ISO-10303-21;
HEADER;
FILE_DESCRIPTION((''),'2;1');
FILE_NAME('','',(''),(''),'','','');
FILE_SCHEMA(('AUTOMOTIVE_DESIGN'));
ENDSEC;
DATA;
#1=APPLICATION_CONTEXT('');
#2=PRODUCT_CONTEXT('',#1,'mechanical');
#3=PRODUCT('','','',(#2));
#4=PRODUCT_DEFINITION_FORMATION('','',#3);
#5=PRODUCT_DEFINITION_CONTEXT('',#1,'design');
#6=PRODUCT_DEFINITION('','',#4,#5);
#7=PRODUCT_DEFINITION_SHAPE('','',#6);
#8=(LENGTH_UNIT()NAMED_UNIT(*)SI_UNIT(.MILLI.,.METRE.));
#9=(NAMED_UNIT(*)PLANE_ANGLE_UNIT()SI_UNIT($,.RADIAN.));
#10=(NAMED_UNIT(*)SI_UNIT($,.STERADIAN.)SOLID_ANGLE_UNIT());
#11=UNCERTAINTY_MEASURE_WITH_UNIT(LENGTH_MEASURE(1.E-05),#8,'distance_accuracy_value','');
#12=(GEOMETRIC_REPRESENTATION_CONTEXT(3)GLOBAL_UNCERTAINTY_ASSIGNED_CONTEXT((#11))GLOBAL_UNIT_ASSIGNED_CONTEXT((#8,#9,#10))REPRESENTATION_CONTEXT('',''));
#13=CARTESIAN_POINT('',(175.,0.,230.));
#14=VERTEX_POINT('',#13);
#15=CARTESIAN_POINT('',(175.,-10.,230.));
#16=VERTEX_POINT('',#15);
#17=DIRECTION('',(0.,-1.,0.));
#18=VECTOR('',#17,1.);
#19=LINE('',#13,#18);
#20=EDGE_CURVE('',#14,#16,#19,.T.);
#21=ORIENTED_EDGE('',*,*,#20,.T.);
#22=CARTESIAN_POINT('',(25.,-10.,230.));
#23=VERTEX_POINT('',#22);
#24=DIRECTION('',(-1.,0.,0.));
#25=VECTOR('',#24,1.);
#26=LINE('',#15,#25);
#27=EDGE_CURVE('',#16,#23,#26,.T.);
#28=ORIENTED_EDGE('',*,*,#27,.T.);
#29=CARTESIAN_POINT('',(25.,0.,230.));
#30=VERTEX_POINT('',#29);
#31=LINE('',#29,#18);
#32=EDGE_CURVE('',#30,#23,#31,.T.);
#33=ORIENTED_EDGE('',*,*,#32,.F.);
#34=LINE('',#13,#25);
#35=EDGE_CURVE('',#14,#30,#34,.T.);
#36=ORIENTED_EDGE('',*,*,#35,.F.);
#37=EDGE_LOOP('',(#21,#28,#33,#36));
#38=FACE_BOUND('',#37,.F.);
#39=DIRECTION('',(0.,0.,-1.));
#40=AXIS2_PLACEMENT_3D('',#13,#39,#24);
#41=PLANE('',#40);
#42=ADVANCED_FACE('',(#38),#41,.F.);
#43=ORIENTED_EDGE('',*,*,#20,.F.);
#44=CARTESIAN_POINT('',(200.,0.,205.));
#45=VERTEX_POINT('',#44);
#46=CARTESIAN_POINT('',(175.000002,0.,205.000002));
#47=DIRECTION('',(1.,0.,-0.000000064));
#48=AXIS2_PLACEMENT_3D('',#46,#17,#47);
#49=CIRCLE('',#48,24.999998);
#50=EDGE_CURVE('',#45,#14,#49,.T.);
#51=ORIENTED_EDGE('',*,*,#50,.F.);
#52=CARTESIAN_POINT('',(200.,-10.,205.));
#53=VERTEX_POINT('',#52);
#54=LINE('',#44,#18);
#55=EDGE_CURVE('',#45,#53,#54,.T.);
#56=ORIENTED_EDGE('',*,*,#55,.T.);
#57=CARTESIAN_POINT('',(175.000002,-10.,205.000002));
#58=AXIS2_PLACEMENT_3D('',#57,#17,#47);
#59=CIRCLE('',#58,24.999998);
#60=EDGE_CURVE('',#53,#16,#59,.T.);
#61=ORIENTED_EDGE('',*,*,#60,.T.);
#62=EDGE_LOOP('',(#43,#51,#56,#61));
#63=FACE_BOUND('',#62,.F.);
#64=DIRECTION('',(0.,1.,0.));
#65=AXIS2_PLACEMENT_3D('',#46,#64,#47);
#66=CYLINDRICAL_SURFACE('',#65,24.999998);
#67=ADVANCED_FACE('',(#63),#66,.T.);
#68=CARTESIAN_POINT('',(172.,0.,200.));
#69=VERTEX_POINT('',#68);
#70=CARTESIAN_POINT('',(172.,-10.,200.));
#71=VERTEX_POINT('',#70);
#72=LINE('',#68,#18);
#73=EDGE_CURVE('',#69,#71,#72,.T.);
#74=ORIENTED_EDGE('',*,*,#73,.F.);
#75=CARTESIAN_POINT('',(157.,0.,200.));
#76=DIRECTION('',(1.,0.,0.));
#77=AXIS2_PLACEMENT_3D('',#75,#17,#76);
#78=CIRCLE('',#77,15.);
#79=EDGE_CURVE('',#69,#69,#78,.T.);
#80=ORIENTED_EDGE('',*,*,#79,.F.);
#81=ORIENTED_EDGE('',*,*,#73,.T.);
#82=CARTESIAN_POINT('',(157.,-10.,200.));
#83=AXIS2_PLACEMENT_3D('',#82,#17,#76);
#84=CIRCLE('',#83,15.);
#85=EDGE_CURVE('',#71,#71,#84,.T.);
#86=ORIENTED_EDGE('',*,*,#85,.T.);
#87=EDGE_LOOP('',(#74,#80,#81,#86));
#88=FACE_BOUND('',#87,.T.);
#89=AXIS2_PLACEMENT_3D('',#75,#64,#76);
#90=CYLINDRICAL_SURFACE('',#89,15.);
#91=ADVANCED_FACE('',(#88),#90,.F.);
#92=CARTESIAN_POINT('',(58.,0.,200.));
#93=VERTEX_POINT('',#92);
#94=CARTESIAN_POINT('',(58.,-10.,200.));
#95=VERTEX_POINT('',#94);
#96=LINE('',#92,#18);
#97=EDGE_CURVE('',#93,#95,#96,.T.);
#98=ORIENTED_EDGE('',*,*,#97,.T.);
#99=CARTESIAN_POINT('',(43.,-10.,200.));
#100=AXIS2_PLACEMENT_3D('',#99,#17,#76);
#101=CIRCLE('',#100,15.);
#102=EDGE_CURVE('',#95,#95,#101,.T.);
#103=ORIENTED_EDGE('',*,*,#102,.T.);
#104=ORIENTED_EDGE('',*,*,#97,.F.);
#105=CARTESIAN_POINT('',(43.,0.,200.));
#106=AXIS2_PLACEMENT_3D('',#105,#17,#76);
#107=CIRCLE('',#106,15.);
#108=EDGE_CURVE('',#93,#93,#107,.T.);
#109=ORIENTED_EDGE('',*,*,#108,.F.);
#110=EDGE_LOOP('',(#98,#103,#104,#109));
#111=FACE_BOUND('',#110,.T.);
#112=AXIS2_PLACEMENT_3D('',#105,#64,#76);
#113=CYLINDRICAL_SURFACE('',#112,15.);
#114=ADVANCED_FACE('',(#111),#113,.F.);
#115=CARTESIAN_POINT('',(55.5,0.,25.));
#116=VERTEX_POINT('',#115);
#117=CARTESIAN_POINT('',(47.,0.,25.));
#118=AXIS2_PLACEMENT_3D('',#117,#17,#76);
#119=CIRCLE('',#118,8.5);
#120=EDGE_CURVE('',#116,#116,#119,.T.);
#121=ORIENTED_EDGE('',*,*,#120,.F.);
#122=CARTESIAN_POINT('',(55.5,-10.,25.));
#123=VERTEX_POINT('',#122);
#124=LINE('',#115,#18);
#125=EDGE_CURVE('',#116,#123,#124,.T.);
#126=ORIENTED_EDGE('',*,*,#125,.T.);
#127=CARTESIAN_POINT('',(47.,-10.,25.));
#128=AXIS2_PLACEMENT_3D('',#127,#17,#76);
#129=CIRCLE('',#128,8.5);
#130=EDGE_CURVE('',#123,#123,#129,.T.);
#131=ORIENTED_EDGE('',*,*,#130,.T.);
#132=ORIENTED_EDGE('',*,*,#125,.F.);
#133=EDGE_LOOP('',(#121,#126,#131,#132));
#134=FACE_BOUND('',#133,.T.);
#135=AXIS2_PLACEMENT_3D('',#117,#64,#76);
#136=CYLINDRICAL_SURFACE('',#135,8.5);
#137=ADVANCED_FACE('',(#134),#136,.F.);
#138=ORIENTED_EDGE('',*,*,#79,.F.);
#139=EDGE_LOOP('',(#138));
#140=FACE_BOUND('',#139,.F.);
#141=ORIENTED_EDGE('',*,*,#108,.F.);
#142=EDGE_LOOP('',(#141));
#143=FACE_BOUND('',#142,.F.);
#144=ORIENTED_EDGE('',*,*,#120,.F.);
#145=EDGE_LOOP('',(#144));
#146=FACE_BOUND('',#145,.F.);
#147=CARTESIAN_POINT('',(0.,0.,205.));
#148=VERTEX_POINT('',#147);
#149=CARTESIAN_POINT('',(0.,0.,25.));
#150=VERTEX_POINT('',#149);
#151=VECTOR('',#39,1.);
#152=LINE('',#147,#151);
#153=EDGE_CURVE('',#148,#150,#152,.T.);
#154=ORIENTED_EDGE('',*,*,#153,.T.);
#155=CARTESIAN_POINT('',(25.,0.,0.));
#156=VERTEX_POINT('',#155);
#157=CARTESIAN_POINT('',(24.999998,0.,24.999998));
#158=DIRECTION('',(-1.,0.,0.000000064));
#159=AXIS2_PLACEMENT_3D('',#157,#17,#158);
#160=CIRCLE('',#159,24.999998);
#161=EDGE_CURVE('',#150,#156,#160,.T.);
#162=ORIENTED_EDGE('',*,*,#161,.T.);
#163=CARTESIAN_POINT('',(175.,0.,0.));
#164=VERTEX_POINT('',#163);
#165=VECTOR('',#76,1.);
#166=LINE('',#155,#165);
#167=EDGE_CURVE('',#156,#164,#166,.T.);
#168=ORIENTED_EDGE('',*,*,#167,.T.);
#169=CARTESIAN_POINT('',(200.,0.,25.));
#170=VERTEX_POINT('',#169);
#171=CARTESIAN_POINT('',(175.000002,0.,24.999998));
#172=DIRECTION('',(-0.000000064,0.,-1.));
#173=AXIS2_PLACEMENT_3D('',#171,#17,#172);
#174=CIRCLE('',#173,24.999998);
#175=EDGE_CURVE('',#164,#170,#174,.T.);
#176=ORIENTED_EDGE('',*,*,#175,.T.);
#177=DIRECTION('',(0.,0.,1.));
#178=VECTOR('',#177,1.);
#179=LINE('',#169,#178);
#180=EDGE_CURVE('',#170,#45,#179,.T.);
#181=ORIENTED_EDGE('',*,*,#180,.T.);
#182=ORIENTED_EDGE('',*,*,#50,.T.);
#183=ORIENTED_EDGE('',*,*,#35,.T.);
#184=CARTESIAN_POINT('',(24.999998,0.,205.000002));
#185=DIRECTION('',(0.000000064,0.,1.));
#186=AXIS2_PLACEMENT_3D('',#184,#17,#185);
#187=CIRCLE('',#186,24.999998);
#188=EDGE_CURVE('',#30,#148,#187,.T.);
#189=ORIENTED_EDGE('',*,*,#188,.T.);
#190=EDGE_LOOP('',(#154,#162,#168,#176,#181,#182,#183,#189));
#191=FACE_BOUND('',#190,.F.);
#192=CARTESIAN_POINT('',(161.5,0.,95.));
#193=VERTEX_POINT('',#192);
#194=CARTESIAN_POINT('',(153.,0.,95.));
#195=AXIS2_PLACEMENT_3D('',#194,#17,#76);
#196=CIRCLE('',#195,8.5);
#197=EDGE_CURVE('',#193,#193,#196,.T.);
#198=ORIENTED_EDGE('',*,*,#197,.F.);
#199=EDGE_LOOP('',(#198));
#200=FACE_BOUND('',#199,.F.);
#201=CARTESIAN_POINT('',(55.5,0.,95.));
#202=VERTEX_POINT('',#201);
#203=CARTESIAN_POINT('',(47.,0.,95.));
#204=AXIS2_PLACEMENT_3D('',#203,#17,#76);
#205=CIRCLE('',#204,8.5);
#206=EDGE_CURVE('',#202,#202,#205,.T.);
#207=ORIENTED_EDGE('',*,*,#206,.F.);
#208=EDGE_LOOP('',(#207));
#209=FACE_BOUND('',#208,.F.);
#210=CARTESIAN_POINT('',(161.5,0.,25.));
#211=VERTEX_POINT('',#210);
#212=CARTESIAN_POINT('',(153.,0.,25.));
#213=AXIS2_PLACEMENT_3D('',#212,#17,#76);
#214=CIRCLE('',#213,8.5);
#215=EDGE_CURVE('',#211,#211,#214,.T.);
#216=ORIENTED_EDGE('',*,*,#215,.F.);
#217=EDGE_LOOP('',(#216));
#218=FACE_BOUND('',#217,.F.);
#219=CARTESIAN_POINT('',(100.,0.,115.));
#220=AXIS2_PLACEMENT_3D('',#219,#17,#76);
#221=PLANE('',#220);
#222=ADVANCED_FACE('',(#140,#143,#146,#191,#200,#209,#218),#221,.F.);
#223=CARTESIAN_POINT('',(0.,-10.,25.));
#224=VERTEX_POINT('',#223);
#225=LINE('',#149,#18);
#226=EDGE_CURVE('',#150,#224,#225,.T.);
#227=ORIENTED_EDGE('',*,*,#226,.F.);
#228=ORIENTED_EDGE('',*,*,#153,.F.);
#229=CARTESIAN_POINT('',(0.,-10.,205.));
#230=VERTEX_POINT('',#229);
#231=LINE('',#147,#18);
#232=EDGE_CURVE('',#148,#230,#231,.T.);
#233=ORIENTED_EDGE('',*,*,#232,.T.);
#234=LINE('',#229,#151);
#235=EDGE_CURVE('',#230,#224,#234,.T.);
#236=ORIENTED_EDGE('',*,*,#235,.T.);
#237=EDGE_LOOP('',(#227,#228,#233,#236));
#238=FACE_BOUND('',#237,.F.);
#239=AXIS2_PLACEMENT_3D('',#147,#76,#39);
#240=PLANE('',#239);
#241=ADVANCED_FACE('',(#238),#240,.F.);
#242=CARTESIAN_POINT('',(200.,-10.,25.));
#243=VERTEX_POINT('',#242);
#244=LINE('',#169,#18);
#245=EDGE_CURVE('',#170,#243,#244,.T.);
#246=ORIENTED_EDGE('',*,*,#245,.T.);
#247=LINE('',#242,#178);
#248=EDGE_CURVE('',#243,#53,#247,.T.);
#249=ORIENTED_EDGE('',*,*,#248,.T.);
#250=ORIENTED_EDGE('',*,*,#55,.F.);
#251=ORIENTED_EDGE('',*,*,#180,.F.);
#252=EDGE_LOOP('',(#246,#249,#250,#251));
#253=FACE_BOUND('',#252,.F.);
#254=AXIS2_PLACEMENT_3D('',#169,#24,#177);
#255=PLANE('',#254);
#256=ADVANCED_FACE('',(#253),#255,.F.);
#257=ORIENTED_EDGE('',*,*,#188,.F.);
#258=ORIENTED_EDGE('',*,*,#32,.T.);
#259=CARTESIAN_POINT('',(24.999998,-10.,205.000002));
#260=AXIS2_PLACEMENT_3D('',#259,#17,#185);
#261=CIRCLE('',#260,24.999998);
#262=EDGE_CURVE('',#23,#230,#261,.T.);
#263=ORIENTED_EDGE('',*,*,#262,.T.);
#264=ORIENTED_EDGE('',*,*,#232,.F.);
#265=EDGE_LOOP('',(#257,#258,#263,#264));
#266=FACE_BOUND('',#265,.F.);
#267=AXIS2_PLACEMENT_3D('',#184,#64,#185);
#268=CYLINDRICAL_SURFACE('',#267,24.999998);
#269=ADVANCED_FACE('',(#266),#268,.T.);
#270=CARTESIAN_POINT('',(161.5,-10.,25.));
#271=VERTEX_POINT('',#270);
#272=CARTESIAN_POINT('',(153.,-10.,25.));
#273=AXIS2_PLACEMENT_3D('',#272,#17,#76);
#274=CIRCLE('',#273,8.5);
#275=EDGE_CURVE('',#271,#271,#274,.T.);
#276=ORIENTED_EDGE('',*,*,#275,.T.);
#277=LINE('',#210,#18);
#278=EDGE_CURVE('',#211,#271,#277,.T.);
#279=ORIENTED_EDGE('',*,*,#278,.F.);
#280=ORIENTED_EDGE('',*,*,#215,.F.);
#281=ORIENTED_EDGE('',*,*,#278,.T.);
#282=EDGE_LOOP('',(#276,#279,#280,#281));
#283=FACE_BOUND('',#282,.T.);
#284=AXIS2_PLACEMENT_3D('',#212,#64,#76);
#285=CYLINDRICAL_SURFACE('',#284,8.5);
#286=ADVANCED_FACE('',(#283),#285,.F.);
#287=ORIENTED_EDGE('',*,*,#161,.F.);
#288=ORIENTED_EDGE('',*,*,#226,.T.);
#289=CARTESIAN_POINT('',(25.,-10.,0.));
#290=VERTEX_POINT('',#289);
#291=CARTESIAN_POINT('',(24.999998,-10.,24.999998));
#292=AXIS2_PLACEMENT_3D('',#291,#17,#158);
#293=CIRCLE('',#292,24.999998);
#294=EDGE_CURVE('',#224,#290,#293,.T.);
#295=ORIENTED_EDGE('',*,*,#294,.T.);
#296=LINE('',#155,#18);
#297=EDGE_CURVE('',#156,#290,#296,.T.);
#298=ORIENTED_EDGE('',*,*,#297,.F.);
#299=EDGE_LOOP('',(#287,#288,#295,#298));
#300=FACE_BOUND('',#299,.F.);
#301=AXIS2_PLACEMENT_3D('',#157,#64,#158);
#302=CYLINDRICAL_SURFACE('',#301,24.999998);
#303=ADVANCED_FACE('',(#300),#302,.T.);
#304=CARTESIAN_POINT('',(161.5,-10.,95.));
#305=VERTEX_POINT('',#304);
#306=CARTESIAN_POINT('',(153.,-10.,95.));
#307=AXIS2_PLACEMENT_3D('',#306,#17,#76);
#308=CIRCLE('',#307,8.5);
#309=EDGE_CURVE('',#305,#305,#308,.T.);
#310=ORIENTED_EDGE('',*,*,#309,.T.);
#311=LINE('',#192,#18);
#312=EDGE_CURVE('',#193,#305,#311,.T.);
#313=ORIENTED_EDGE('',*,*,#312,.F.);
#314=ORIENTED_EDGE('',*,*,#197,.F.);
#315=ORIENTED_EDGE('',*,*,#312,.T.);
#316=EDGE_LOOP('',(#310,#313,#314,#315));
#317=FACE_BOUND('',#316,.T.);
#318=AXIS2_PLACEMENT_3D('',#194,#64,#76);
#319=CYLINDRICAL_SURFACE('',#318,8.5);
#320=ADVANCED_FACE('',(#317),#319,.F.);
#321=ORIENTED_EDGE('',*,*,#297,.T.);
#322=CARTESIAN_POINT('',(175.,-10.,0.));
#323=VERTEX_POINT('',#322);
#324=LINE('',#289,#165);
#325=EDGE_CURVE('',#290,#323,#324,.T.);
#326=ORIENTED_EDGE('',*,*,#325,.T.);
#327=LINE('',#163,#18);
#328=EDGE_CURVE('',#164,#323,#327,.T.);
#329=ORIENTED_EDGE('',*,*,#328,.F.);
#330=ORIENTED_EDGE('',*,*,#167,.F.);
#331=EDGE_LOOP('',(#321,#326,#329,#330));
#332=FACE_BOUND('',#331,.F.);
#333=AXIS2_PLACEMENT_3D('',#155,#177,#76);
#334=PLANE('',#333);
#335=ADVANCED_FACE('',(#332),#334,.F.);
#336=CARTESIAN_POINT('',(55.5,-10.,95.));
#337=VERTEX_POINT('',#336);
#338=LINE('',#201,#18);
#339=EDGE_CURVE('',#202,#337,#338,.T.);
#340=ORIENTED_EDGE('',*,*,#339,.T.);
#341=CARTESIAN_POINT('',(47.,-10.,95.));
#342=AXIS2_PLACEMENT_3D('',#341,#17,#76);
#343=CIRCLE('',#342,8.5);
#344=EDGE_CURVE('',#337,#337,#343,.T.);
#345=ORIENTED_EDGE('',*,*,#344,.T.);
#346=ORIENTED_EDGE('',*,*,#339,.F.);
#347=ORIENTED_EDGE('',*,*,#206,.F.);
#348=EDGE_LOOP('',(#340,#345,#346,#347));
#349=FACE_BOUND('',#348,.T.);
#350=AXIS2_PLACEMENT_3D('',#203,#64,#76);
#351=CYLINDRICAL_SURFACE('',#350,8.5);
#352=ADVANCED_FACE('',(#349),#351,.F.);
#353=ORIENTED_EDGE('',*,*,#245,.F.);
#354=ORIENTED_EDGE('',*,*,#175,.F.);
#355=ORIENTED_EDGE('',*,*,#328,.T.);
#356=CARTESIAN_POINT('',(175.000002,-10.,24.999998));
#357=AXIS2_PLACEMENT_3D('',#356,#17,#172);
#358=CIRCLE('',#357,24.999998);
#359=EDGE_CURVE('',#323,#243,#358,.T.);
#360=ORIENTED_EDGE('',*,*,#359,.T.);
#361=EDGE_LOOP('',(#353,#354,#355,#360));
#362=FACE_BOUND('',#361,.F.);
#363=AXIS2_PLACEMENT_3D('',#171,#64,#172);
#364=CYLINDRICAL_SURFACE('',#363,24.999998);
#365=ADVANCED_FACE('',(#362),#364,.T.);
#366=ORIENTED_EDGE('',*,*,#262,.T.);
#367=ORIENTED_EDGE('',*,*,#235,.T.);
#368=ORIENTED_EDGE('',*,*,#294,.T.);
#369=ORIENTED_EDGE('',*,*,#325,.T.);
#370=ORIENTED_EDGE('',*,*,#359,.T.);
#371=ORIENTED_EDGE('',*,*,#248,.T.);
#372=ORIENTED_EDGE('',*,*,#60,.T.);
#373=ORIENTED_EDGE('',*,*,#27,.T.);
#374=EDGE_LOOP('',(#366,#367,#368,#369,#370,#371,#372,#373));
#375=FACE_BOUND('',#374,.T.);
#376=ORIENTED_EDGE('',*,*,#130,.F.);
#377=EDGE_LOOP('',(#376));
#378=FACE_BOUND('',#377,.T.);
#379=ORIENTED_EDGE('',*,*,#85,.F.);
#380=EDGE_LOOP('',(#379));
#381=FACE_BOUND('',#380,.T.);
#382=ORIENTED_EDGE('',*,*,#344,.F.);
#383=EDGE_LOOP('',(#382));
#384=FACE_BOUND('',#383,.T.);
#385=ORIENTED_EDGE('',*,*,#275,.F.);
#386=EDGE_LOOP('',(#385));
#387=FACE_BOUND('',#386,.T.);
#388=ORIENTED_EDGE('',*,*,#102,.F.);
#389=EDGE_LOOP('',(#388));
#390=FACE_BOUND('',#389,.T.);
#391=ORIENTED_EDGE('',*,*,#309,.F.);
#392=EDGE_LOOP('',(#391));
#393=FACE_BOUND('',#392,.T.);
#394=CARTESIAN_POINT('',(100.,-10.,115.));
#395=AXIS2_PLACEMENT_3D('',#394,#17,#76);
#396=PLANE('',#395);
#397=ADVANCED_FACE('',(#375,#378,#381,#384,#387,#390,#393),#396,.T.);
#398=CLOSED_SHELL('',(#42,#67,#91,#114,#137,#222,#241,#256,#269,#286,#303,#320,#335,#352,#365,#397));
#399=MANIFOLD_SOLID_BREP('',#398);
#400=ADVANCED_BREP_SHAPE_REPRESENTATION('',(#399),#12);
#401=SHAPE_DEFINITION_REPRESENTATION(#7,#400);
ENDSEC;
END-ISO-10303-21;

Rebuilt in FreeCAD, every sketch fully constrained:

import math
import FreeCAD as App
import Part
import Sketcher
Q = App.Units.Quantity

doc = App.newDocument("Part")
params = doc.addObject("Spreadsheet::Sheet", "Params")
for row, (alias, value) in enumerate([
    ("sketch1_diameter", "17 mm"),
    ("sketch1_diameter2", "30 mm"),
    ("sketch1_radius", "24.999998 mm"),
    ("sketch1_width", "150 mm"),
    ("sketch1_height", "180 mm"),
    ("pad1_length", "10 mm"),
], start=1):
    params.set(f"A{row}", alias)
    params.set(f"B{row}", "=" + value)
    params.setAlias(f"B{row}", alias)

body = doc.addObject("PartDesign::Body", "Body")

# Sketch on XZ plane
sketch1 = doc.addObject("Sketcher::SketchObject", "Sketch")
body.addObject(sketch1)
sketch1.AttachmentSupport = (doc.XZ_Plane, [""])
sketch1.MapMode = "FlatFace"
sketch1.addGeometry(Part.ArcOfCircle(Part.Circle(App.Vector(24.999998, 24.999998, 0), App.Vector(0, 0, 1), 24.999998), math.radians(179.999996), math.radians(270.000004)), False)
sketch1.addGeometry(Part.LineSegment(App.Vector(25, 0, 0), App.Vector(175, 0, 0)), False)
sketch1.addGeometry(Part.ArcOfCircle(Part.Circle(App.Vector(175.000002, 24.999998, 0), App.Vector(0, 0, 1), 24.999998), math.radians(-90.000004), math.radians(0.000004)), False)
sketch1.addGeometry(Part.LineSegment(App.Vector(200, 25, 0), App.Vector(200, 205, 0)), False)
sketch1.addGeometry(Part.ArcOfCircle(Part.Circle(App.Vector(175.000002, 205.000002, 0), App.Vector(0, 0, 1), 24.999998), math.radians(-0.000004), math.radians(90.000004)), False)
sketch1.addGeometry(Part.LineSegment(App.Vector(175, 230, 0), App.Vector(25, 230, 0)), False)
sketch1.addGeometry(Part.ArcOfCircle(Part.Circle(App.Vector(24.999998, 205.000002, 0), App.Vector(0, 0, 1), 24.999998), math.radians(89.999996), math.radians(180.000004)), False)
sketch1.addGeometry(Part.LineSegment(App.Vector(0, 205, 0), App.Vector(0, 25, 0)), False)
sketch1.addGeometry(Part.Circle(App.Vector(47, 25, 0), App.Vector(0, 0, 1), 8.5), False)
sketch1.addGeometry(Part.Circle(App.Vector(47, 95, 0), App.Vector(0, 0, 1), 8.5), False)
sketch1.addGeometry(Part.Circle(App.Vector(153, 25, 0), App.Vector(0, 0, 1), 8.5), False)
sketch1.addGeometry(Part.Circle(App.Vector(153, 95, 0), App.Vector(0, 0, 1), 8.5), False)
sketch1.addGeometry(Part.Circle(App.Vector(43, 200, 0), App.Vector(0, 0, 1), 15), False)
sketch1.addGeometry(Part.Circle(App.Vector(157, 200, 0), App.Vector(0, 0, 1), 15), False)
sketch1.addConstraint(Sketcher.Constraint("Tangent", 0, 2, 1, 1))
sketch1.addConstraint(Sketcher.Constraint("Tangent", 1, 2, 2, 1))
sketch1.addConstraint(Sketcher.Constraint("Tangent", 2, 2, 3, 1))
sketch1.addConstraint(Sketcher.Constraint("Tangent", 3, 2, 4, 1))
sketch1.addConstraint(Sketcher.Constraint("Tangent", 4, 2, 5, 1))
sketch1.addConstraint(Sketcher.Constraint("Tangent", 5, 2, 6, 1))
sketch1.addConstraint(Sketcher.Constraint("Tangent", 6, 2, 7, 1))
sketch1.addConstraint(Sketcher.Constraint("Tangent", 7, 2, 0, 1))
sketch1.addConstraint(Sketcher.Constraint("Horizontal", 1))
sketch1.addConstraint(Sketcher.Constraint("Vertical", 3))
sketch1.addConstraint(Sketcher.Constraint("Horizontal", 5))
sketch1.addConstraint(Sketcher.Constraint("Vertical", 7))
sketch1.addConstraint(Sketcher.Constraint("Equal", 0, 2))
sketch1.addConstraint(Sketcher.Constraint("Equal", 2, 4))
sketch1.addConstraint(Sketcher.Constraint("Equal", 4, 6))
sketch1.addConstraint(Sketcher.Constraint("Equal", 8, 9))
sketch1.addConstraint(Sketcher.Constraint("Equal", 9, 10))
sketch1.addConstraint(Sketcher.Constraint("Equal", 10, 11))
sketch1.addConstraint(Sketcher.Constraint("Equal", 12, 13))
sketch1.addConstraint(Sketcher.Constraint("PointOnObject", 0, 2, -1))
sketch1.addConstraint(Sketcher.Constraint("PointOnObject", 6, 2, -2))
sketch1.addConstraint(Sketcher.Constraint("Horizontal", 2, 3, 8, 3))
sketch1.addConstraint(Sketcher.Constraint("Horizontal", 8, 3, 10, 3))
sketch1.addConstraint(Sketcher.Constraint("Horizontal", 9, 3, 11, 3))
sketch1.addConstraint(Sketcher.Constraint("Horizontal", 12, 3, 13, 3))
sketch1.addConstraint(Sketcher.Constraint("Vertical", 8, 3, 9, 3))
sketch1.addConstraint(Sketcher.Constraint("Vertical", 10, 3, 11, 3))
sketch1.addConstraint(Sketcher.Constraint("Diameter", 8, Q("17 mm")))
sketch1.addConstraint(Sketcher.Constraint("Diameter", 12, Q("30 mm")))
sketch1.addConstraint(Sketcher.Constraint("Radius", 0, Q("24.999998 mm")))
sketch1.addConstraint(Sketcher.Constraint("DistanceX", 1, 1, 1, 2, Q("150 mm")))
sketch1.addConstraint(Sketcher.Constraint("DistanceY", 3, 1, 3, 2, Q("180 mm")))
sketch1.addConstraint(Sketcher.Constraint("DistanceX", -1, 1, 8, 3, Q("47 mm")))
sketch1.addConstraint(Sketcher.Constraint("DistanceY", -1, 1, 9, 3, Q("95 mm")))
sketch1.addConstraint(Sketcher.Constraint("DistanceX", -1, 1, 10, 3, Q("153 mm")))
sketch1.addConstraint(Sketcher.Constraint("DistanceX", -1, 1, 12, 3, Q("43 mm")))
sketch1.addConstraint(Sketcher.Constraint("DistanceY", -1, 1, 12, 3, Q("200 mm")))
sketch1.addConstraint(Sketcher.Constraint("DistanceX", -1, 1, 13, 3, Q("157 mm")))
sketch1.setExpression("Constraints[27]", "Params.sketch1_diameter")
sketch1.setExpression("Constraints[28]", "Params.sketch1_diameter2")
sketch1.setExpression("Constraints[29]", "Params.sketch1_radius")
sketch1.setExpression("Constraints[30]", "Params.sketch1_width")
sketch1.setExpression("Constraints[31]", "Params.sketch1_height")
pad1 = doc.addObject("PartDesign::Pad", "Pad")
body.addObject(pad1)
pad1.Profile = sketch1
pad1.setExpression("Length", "Params.pad1_length")

doc.recompute()
